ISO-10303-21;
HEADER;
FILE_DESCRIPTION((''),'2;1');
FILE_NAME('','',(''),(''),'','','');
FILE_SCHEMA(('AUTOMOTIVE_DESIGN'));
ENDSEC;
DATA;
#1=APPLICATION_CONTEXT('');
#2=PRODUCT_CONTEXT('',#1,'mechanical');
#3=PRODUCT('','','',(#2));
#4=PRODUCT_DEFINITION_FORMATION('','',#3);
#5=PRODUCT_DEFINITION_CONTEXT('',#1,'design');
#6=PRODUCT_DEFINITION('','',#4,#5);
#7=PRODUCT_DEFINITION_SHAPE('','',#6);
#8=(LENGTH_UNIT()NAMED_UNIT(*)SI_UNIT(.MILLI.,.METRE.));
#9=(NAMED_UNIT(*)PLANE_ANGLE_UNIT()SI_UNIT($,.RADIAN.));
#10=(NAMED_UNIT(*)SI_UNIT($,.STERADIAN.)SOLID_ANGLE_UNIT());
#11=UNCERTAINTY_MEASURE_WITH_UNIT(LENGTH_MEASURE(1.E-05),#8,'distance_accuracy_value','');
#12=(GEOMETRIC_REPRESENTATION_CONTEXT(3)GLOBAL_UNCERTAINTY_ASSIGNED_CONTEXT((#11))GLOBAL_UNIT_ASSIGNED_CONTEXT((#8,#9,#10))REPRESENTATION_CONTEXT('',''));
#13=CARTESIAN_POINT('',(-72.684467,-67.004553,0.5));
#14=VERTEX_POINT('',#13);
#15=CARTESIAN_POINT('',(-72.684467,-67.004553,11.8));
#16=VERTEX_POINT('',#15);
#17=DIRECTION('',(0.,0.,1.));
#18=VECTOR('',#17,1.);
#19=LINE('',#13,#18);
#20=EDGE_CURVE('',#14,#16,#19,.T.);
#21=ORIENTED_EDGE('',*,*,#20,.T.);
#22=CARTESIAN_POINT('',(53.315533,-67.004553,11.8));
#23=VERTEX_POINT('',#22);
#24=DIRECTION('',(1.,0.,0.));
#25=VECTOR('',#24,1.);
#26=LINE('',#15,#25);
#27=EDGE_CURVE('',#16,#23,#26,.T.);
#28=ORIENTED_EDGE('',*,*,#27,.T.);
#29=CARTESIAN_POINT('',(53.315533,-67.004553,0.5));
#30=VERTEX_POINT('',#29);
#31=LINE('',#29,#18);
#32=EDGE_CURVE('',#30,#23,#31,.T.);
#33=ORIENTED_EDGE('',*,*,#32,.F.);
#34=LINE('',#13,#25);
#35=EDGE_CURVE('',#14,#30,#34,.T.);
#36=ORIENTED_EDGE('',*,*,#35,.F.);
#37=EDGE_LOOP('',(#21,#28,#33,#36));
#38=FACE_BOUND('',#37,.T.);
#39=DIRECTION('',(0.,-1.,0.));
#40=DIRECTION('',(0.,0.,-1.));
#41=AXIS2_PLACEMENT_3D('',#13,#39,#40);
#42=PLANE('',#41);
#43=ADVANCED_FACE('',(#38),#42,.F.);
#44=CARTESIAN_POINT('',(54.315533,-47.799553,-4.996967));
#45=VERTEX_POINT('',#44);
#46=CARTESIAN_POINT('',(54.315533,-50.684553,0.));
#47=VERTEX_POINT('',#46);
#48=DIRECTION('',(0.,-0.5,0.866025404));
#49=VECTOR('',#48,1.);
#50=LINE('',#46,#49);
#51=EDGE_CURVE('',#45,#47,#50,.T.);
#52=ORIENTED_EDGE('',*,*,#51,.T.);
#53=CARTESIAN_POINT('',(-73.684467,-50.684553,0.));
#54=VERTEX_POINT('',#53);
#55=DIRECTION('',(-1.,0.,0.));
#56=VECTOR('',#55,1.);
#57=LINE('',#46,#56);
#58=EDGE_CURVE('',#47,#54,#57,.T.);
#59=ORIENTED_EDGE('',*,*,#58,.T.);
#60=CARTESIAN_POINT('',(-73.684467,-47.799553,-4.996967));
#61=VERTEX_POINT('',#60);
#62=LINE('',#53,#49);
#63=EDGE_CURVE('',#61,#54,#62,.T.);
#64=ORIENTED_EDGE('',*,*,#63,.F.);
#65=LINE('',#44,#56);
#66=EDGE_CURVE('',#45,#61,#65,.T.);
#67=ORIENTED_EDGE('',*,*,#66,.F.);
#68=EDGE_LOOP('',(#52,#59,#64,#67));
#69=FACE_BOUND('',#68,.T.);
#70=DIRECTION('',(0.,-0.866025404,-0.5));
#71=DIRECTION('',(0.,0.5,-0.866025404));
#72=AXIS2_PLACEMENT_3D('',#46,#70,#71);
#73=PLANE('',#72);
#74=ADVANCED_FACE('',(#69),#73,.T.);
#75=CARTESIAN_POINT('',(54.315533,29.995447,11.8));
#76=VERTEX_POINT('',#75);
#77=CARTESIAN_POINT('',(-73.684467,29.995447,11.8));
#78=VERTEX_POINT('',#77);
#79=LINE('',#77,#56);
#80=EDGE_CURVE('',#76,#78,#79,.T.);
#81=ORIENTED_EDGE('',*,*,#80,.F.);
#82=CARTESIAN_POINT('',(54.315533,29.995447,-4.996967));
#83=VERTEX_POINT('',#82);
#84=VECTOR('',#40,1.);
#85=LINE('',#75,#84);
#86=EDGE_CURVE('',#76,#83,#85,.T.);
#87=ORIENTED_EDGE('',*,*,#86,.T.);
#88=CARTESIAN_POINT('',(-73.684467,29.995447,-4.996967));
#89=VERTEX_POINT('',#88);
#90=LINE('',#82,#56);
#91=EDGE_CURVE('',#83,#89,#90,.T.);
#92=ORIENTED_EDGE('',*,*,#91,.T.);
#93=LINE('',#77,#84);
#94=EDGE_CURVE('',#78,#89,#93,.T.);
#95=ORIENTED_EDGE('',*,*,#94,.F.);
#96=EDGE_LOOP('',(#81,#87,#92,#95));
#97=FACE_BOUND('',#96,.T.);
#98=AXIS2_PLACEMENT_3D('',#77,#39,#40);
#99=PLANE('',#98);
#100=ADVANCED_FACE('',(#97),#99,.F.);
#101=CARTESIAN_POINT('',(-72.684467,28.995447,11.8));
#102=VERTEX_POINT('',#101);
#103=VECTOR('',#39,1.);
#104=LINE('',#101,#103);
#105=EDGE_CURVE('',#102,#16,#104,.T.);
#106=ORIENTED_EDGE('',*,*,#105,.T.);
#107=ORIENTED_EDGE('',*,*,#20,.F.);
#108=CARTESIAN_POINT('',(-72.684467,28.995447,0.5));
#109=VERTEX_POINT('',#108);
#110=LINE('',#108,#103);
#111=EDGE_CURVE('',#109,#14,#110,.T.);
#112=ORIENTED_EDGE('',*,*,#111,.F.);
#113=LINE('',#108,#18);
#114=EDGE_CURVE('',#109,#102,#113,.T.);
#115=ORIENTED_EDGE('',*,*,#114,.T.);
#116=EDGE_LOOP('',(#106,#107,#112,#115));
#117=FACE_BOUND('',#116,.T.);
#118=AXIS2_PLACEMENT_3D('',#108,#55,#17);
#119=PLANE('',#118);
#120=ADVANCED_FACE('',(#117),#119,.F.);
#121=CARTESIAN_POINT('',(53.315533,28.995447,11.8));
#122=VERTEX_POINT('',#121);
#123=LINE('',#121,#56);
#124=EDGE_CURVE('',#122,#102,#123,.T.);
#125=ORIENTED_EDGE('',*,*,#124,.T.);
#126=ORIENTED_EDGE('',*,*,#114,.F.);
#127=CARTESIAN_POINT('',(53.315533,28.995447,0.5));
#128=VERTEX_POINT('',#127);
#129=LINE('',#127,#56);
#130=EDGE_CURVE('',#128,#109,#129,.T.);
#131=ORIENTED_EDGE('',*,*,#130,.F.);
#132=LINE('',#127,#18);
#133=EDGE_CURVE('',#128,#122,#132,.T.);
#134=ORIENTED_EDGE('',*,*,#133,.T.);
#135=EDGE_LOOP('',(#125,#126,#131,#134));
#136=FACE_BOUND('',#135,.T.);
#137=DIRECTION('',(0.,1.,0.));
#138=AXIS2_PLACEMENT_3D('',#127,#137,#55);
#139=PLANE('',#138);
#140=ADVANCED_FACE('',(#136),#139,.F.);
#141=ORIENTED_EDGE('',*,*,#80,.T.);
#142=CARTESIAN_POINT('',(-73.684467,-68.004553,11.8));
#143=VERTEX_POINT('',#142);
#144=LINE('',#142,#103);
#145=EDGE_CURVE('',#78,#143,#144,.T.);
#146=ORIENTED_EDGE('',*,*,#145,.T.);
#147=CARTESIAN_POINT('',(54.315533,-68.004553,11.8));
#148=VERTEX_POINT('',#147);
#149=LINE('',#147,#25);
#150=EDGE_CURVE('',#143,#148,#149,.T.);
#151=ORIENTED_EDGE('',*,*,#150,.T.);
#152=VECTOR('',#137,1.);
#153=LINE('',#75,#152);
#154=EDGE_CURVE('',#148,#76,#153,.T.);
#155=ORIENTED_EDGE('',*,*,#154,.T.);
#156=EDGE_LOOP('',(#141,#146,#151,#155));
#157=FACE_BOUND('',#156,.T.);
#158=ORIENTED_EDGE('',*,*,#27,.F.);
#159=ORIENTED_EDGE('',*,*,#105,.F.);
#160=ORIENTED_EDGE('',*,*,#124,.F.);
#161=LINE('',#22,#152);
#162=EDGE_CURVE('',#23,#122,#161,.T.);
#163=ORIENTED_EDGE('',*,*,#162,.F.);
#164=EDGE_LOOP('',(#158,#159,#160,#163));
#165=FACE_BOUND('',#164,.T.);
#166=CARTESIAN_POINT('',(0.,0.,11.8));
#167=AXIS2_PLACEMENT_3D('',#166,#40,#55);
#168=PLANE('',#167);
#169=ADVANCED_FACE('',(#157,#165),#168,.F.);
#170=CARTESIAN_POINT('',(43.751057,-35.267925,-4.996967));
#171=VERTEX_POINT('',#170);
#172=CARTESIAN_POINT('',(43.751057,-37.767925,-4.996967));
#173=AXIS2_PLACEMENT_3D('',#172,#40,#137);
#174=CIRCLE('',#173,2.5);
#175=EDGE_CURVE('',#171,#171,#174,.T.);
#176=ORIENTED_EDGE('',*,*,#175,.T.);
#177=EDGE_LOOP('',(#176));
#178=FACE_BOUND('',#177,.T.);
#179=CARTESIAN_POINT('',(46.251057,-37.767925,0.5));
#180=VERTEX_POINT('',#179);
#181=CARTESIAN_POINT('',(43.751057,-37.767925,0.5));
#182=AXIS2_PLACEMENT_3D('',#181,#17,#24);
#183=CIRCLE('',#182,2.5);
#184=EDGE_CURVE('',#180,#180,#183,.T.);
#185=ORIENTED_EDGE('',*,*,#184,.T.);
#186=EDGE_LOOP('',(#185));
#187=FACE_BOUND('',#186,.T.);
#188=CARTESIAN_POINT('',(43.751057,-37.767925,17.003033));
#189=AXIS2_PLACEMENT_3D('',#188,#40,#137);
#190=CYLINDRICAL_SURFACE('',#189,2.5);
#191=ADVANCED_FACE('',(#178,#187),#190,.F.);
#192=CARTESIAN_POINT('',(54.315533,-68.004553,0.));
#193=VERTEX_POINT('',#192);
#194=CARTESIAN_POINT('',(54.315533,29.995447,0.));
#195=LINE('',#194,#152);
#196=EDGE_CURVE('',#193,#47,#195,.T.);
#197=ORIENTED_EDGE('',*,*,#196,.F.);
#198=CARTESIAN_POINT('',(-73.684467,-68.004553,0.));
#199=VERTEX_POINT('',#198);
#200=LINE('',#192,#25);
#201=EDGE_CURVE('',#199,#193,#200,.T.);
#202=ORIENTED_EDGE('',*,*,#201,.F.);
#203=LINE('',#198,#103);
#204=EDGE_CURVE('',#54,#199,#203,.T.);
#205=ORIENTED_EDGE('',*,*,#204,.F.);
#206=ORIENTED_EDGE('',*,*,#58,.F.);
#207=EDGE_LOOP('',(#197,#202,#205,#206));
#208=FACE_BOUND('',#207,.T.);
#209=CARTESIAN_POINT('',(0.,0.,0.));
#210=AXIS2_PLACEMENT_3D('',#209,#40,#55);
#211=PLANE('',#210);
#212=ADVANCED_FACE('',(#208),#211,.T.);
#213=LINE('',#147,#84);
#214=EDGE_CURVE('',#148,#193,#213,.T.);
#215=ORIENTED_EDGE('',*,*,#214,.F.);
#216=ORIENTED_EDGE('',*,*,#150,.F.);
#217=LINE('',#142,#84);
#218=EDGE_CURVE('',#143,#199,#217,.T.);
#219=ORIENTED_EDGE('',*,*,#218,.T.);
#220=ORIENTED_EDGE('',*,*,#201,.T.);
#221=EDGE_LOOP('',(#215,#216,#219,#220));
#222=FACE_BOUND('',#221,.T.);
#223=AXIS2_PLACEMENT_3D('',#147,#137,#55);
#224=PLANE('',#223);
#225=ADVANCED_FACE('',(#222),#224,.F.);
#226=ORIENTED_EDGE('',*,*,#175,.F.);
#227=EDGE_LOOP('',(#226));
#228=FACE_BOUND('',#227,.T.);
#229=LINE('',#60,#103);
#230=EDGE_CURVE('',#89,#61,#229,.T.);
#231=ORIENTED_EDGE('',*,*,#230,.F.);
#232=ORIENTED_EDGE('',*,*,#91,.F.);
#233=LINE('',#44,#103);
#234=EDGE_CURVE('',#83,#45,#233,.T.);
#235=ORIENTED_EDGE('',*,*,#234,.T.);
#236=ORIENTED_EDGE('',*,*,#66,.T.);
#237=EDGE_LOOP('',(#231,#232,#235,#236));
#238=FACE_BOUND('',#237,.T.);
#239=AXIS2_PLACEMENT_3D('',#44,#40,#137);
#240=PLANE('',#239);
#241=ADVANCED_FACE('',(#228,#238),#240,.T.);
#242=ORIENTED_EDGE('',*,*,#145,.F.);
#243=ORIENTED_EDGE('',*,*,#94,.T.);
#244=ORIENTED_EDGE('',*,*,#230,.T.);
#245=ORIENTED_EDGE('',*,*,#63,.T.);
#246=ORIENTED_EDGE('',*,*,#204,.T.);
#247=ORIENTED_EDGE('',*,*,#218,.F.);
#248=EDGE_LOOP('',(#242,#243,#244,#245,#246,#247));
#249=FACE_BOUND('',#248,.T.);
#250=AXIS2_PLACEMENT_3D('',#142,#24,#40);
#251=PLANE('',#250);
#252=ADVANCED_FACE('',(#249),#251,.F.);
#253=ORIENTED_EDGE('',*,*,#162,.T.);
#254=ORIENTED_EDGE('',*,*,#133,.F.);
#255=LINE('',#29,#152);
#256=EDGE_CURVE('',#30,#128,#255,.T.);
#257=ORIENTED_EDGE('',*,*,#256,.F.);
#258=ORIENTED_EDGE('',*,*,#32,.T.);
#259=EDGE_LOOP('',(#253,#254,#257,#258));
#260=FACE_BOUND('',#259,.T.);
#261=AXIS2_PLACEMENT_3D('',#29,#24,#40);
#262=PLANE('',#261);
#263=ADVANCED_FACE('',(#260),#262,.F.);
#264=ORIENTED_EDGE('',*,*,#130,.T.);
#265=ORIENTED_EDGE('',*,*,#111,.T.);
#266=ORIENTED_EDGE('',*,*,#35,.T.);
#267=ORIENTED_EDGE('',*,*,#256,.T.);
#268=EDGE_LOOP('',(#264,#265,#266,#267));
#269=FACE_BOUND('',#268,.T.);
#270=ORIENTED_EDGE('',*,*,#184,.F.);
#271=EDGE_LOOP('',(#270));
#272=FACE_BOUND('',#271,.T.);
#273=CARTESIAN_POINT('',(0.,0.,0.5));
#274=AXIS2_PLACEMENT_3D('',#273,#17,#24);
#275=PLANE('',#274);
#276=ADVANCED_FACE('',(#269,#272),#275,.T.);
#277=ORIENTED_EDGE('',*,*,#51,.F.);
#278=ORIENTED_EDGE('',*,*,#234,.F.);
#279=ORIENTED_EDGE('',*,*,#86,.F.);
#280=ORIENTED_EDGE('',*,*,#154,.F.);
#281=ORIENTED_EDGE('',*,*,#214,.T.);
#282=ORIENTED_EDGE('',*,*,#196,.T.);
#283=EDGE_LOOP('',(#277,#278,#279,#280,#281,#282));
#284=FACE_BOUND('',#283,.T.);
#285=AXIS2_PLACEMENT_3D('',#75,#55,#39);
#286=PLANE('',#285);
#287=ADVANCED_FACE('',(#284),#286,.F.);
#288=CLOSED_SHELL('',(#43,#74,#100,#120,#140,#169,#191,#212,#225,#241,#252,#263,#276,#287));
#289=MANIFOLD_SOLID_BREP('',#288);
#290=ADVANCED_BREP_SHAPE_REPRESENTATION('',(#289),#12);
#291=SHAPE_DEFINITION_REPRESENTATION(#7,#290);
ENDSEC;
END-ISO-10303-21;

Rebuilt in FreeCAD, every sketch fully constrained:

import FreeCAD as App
import Part
import Sketcher
from FreeCAD import Vector
Q = App.Units.Quantity


def add_polygon(sketch, points):
    """Adds a closed chain of lines whose ends are joined by coincident constraints."""
    first, n = sketch.GeometryCount, len(points)
    for a, b in zip(points, points[1:] + points[:1]):
        sketch.addGeometry(Part.LineSegment(App.Vector(*a, 0), App.Vector(*b, 0)), False)
    for i in range(n):
        sketch.addConstraint(Sketcher.Constraint("Coincident", first + i, 2, first + (i + 1) % n, 1))

doc = App.newDocument("Part")
params = doc.addObject("Spreadsheet::Sheet", "Params")
for row, (alias, value) in enumerate([
    ("sketch1_width", "128 mm"),
    ("sketch1_height", "98 mm"),
    ("pad1_length", "11.8 mm"),
    ("sketch2_width", "126 mm"),
    ("sketch2_height", "96 mm"),
    ("pocket1_length", "11.3 mm"),
    ("sketch3_width", "80.68 mm"),
    ("sketch3_length", "5.77 mm"),
    ("pad2_length", "128 mm"),
    ("sketch4_diameter", "5 mm"),
    ("pocket2_length", "22 mm"),
], start=1):
    params.set(f"A{row}", alias)
    params.set(f"B{row}", "=" + value)
    params.setAlias(f"B{row}", alias)

body = doc.addObject("PartDesign::Body", "Body")

# Sketch on XY plane
sketch1 = body.newObject("Sketcher::SketchObject", "Sketch")
sketch1.AttachmentSupport = (doc.getObject("XY_Plane"), [""])
sketch1.MapMode = "FlatFace"
add_polygon(sketch1, [(-74, 30), (-74, -68), (54, -68), (54, 30)])  # lines 0-3
sketch1.addConstraint(Sketcher.Constraint("Vertical", 0))
sketch1.addConstraint(Sketcher.Constraint("Horizontal", 1))
sketch1.addConstraint(Sketcher.Constraint("Vertical", 2))
sketch1.addConstraint(Sketcher.Constraint("Horizontal", 3))
sketch1.addConstraint(Sketcher.Constraint("DistanceX", 1, 1, 1, 2, Q("128 mm")))
sketch1.addConstraint(Sketcher.Constraint("DistanceY", 0, 2, 0, 1, Q("98 mm")))
sketch1.addConstraint(Sketcher.Constraint("DistanceX", 0, 2, -1, 1, Q("73.684467 mm")))
sketch1.addConstraint(Sketcher.Constraint("DistanceY", 0, 2, -1, 1, Q("68.004553 mm")))
sketch1.setExpression("Constraints[8]", "Params.sketch1_width")
sketch1.setExpression("Constraints[9]", "Params.sketch1_height")
pad1 = body.newObject("PartDesign::Pad", "Pad")
pad1.Profile = sketch1
pad1.setExpression("Length", "Params.pad1_length")

# Sketch on XY plane
sketch2 = body.newObject("Sketcher::SketchObject", "Sketch001")
sketch2.AttachmentSupport = (doc.getObject("XY_Plane"), [""])
sketch2.MapMode = "FlatFace"
sketch2.AttachmentOffset = App.Placement(Vector(0, 0, 11.8), App.Rotation())
add_polygon(sketch2, [(-73, 29), (-73, -67), (53, -67), (53, 29)])  # lines 0-3
sketch2.addConstraint(Sketcher.Constraint("Vertical", 0))
sketch2.addConstraint(Sketcher.Constraint("Horizontal", 1))
sketch2.addConstraint(Sketcher.Constraint("Vertical", 2))
sketch2.addConstraint(Sketcher.Constraint("Horizontal", 3))
sketch2.addConstraint(Sketcher.Constraint("DistanceX", 1, 1, 1, 2, Q("126 mm")))
sketch2.addConstraint(Sketcher.Constraint("DistanceY", 0, 2, 0, 1, Q("96 mm")))
sketch2.addConstraint(Sketcher.Constraint("DistanceX", 0, 2, -1, 1, Q("72.684467 mm")))
sketch2.addConstraint(Sketcher.Constraint("DistanceY", 0, 2, -1, 1, Q("67.004553 mm")))
sketch2.setExpression("Constraints[8]", "Params.sketch2_width")
sketch2.setExpression("Constraints[9]", "Params.sketch2_height")
pocket1 = body.newObject("PartDesign::Pocket", "Pocket")
pocket1.Profile = sketch2
pocket1.setExpression("Length", "Params.pocket1_length")

# Sketch on YZ plane
sketch3 = body.newObject("Sketcher::SketchObject", "Sketch002")
sketch3.AttachmentSupport = (doc.getObject("YZ_Plane"), [""])
sketch3.MapMode = "FlatFace"
sketch3.AttachmentOffset = App.Placement(Vector(0, 0, -73.684467), App.Rotation())
add_polygon(sketch3, [(-47.8, -5), (-50.7, 0), (30, 0), (30, -5)])  # lines 0-3
sketch3.addConstraint(Sketcher.Constraint("Horizontal", 1))
sketch3.addConstraint(Sketcher.Constraint("Vertical", 2))
sketch3.addConstraint(Sketcher.Constraint("Horizontal", 3))
sketch3.addConstraint(Sketcher.Constraint("PointOnObject", 0, 2, -1))
sketch3.addConstraint(Sketcher.Constraint("Angle", 0, Q("120 deg")))
sketch3.addConstraint(Sketcher.Constraint("DistanceX", 1, 1, 1, 2, Q("80.68 mm")))
sketch3.addConstraint(Sketcher.Constraint("Distance", 0, Q("5.77 mm")))
sketch3.addConstraint(Sketcher.Constraint("DistanceX", 0, 2, -1, 1, Q("50.684553 mm")))
sketch3.setExpression("Constraints[9]", "Params.sketch3_width")
sketch3.setExpression("Constraints[10]", "Params.sketch3_length")
pad2 = body.newObject("PartDesign::Pad", "Pad001")
pad2.Profile = sketch3
pad2.setExpression("Length", "Params.pad2_length")

# Sketch on XY plane
sketch4 = body.newObject("Sketcher::SketchObject", "Sketch003")
sketch4.AttachmentSupport = (doc.getObject("XY_Plane"), [""])
sketch4.MapMode = "FlatFace"
sketch4.AttachmentOffset = App.Placement(Vector(0, 0, -4.996967), App.Rotation())
sketch4.addGeometry(Part.Circle(Vector(43.8, -37.8, 0), Vector(0, 0, 1), 2.5), False)
sketch4.addConstraint(Sketcher.Constraint("Diameter", 0, Q("5 mm")))
sketch4.addConstraint(Sketcher.Constraint("DistanceX", -1, 1, 0, 3, Q("43.751057 mm")))
sketch4.addConstraint(Sketcher.Constraint("DistanceY", 0, 3, -1, 1, Q("37.767925 mm")))
sketch4.setExpression("Constraints[0]", "Params.sketch4_diameter")
pocket2 = body.newObject("PartDesign::Pocket", "Pocket001")
pocket2.Profile = sketch4
pocket2.setExpression("Length", "Params.pocket2_length")
pocket2.Reversed = True

doc.recompute()
